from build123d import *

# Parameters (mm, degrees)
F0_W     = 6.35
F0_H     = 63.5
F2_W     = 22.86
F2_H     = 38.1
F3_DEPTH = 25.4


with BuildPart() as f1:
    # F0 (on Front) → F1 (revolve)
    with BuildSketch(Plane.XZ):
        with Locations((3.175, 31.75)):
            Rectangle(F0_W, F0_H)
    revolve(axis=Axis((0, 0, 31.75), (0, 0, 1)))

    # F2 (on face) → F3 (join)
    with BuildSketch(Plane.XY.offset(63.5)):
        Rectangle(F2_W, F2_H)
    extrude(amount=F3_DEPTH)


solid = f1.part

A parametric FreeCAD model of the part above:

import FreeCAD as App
import Part
import Sketcher
from FreeCAD import Vector
Q = App.Units.Quantity

doc = App.newDocument("Part")
body = doc.addObject("PartDesign::Body", "Body")

# Sketch on XZ plane
sketch1 = body.newObject("Sketcher::SketchObject", "Sketch")
sketch1.AttachmentSupport = (doc.getObject("XZ_Plane"), [""])
sketch1.MapMode = "FlatFace"
sketch1.addGeometry([
    Part.LineSegment(Vector(0, 64, 0), Vector(0, 0, 0)),
    Part.LineSegment(Vector(0, 0, 0), Vector(6, 0, 0)),
    Part.LineSegment(Vector(6, 0, 0), Vector(6, 64, 0)),
    Part.LineSegment(Vector(6, 64, 0), Vector(0, 64, 0)),
], False)
sketch1.addConstraint([
    Sketcher.Constraint("Coincident", 0, 2, 1, 1),
    Sketcher.Constraint("Coincident", 1, 2, 2, 1),
    Sketcher.Constraint("Coincident", 2, 2, 3, 1),
    Sketcher.Constraint("Coincident", 3, 2, 0, 1),
    Sketcher.Constraint("Vertical", 0),
    Sketcher.Constraint("Horizontal", 1),
    Sketcher.Constraint("Vertical", 2),
    Sketcher.Constraint("Horizontal", 3),
    Sketcher.Constraint("Coincident", 0, 2, -1, 1),
    Sketcher.Constraint("DistanceY", 0, 2, 0, 1, Q("2.5 in")),
    Sketcher.Constraint("DistanceX", 1, 1, 1, 2, Q("0.25 in")),
])
revolution = body.newObject("PartDesign::Revolution", "Revolution")
revolution.Profile = sketch1
revolution.ReferenceAxis = (sketch1, ["V_Axis"])
revolution.Angle = 360

# Sketch on XY plane
sketch2 = body.newObject("Sketcher::SketchObject", "Sketch001")
sketch2.AttachmentSupport = (doc.getObject("XY_Plane"), [""])
sketch2.MapMode = "FlatFace"
sketch2.AttachmentOffset = App.Placement(Vector(0, 0, 2.5 * 25.4), App.Rotation())
sketch2.addGeometry([
    Part.LineSegment(Vector(-11, 19, 0), Vector(-11, -19, 0)),
    Part.LineSegment(Vector(-11, -19, 0), Vector(11, -19, 0)),
    Part.LineSegment(Vector(11, -19, 0), Vector(11, 19, 0)),
    Part.LineSegment(Vector(11, 19, 0), Vector(-11, 19, 0)),
], False)
sketch2.addConstraint([
    Sketcher.Constraint("Coincident", 0, 2, 1, 1),
    Sketcher.Constraint("Coincident", 1, 2, 2, 1),
    Sketcher.Constraint("Coincident", 2, 2, 3, 1),
    Sketcher.Constraint("Coincident", 3, 2, 0, 1),
    Sketcher.Constraint("Vertical", 0),
    Sketcher.Constraint("Horizontal", 1),
    Sketcher.Constraint("Vertical", 2),
    Sketcher.Constraint("Horizontal", 3),
    Sketcher.Constraint("Symmetric", 0, 2, 2, 2, -1, 1),
    Sketcher.Constraint("DistanceX", 1, 1, 1, 2, Q("0.9 in")),
    Sketcher.Constraint("DistanceY", 0, 2, 0, 1, Q("1.5 in")),
])
pad1 = body.newObject("PartDesign::Pad", "Pad")
pad1.Profile = sketch2
pad1.Length = Q("1 in")

doc.recompute()
